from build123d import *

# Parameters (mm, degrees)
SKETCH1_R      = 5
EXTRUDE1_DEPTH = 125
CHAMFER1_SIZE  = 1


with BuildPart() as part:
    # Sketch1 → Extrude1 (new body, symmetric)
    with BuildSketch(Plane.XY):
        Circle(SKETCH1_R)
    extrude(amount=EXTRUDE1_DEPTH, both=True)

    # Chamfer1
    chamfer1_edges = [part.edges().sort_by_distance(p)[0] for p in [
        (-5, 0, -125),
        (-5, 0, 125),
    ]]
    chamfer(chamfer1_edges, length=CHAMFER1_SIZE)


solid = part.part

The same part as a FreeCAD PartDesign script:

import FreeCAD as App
import Part
import Sketcher
from FreeCAD import Vector
Q = App.Units.Quantity


def edges_at(feature, points):
    """Names of the edges that pass closest to the given points."""
    edges = feature.Shape.Edges
    near = lambda p: min(range(len(edges)), key=lambda i: edges[i].distToShape(Part.Vertex(*p))[0])
    return sorted({f"Edge{near(p) + 1}" for p in points})

doc = App.newDocument("Part")
body = doc.addObject("PartDesign::Body", "Body")

# Sketch on XY plane
sketch1 = body.newObject("Sketcher::SketchObject", "Sketch")
sketch1.AttachmentSupport = (doc.getObject("XY_Plane"), [""])
sketch1.MapMode = "FlatFace"
sketch1.addGeometry(Part.Circle(Vector(0, 0, 0), Vector(0, 0, 1), 5), False)
sketch1.addConstraint([
    Sketcher.Constraint("Coincident", 0, 3, -1, 1),
    Sketcher.Constraint("Diameter", 0, Q("10 mm")),
])
pad1 = body.newObject("PartDesign::Pad", "Pad")
pad1.Profile = sketch1
pad1.Length = 250
pad1.Midplane = True
doc.recompute()

chamfer = body.newObject("PartDesign::Chamfer", "Chamfer")
chamfer.Base = (pad1, edges_at(pad1, [(-5, 0, -125), (-5, 0, 125)]))
chamfer.Size = 1

doc.recompute()
